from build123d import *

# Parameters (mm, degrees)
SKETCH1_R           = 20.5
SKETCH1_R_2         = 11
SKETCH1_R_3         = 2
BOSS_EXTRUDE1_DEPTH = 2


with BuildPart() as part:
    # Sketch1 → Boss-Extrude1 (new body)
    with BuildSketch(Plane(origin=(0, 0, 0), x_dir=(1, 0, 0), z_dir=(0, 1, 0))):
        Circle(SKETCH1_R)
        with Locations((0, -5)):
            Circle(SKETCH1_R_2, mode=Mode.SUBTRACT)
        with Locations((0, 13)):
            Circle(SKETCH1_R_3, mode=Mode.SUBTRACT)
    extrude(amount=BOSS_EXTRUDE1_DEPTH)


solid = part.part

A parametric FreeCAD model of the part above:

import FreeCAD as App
import Part
import Sketcher

V = App.Vector
Q = App.Units.Quantity

doc = App.newDocument("Part")
body = doc.addObject("PartDesign::Body", "Body")

# Sketch on XZ plane
sketch1 = body.newObject("Sketcher::SketchObject", "Sketch")
sketch1.AttachmentSupport = (doc.getObject("XZ_Plane"), [""])
sketch1.MapMode = "FlatFace"
sketch1.addGeometry([
    Part.Circle(V(0, 0, 0), V(0, 0, 1), 20.5),
    Part.Circle(V(0, 5, 0), V(0, 0, 1), 11),
    Part.Circle(V(0, -13, 0), V(0, 0, 1), 2),
], False)
sketch1.addConstraint([
    Sketcher.Constraint("Coincident", 0, 3, -1, 1),
    Sketcher.Constraint("PointOnObject", 1, 3, -2),
    Sketcher.Constraint("PointOnObject", 2, 3, -2),
    Sketcher.Constraint("Diameter", 0, Q("41 mm")),
    Sketcher.Constraint("Diameter", 1, Q("22 mm")),
    Sketcher.Constraint("Diameter", 2, Q("4 mm")),
    Sketcher.Constraint("DistanceY", -1, 1, 1, 3, Q("5 mm")),
    Sketcher.Constraint("DistanceY", 2, 3, -1, 1, Q("13 mm")),
])
pad1 = body.newObject("PartDesign::Pad", "Pad")
pad1.Profile = sketch1
pad1.Length = 2
pad1.Reversed = True

doc.recompute()
